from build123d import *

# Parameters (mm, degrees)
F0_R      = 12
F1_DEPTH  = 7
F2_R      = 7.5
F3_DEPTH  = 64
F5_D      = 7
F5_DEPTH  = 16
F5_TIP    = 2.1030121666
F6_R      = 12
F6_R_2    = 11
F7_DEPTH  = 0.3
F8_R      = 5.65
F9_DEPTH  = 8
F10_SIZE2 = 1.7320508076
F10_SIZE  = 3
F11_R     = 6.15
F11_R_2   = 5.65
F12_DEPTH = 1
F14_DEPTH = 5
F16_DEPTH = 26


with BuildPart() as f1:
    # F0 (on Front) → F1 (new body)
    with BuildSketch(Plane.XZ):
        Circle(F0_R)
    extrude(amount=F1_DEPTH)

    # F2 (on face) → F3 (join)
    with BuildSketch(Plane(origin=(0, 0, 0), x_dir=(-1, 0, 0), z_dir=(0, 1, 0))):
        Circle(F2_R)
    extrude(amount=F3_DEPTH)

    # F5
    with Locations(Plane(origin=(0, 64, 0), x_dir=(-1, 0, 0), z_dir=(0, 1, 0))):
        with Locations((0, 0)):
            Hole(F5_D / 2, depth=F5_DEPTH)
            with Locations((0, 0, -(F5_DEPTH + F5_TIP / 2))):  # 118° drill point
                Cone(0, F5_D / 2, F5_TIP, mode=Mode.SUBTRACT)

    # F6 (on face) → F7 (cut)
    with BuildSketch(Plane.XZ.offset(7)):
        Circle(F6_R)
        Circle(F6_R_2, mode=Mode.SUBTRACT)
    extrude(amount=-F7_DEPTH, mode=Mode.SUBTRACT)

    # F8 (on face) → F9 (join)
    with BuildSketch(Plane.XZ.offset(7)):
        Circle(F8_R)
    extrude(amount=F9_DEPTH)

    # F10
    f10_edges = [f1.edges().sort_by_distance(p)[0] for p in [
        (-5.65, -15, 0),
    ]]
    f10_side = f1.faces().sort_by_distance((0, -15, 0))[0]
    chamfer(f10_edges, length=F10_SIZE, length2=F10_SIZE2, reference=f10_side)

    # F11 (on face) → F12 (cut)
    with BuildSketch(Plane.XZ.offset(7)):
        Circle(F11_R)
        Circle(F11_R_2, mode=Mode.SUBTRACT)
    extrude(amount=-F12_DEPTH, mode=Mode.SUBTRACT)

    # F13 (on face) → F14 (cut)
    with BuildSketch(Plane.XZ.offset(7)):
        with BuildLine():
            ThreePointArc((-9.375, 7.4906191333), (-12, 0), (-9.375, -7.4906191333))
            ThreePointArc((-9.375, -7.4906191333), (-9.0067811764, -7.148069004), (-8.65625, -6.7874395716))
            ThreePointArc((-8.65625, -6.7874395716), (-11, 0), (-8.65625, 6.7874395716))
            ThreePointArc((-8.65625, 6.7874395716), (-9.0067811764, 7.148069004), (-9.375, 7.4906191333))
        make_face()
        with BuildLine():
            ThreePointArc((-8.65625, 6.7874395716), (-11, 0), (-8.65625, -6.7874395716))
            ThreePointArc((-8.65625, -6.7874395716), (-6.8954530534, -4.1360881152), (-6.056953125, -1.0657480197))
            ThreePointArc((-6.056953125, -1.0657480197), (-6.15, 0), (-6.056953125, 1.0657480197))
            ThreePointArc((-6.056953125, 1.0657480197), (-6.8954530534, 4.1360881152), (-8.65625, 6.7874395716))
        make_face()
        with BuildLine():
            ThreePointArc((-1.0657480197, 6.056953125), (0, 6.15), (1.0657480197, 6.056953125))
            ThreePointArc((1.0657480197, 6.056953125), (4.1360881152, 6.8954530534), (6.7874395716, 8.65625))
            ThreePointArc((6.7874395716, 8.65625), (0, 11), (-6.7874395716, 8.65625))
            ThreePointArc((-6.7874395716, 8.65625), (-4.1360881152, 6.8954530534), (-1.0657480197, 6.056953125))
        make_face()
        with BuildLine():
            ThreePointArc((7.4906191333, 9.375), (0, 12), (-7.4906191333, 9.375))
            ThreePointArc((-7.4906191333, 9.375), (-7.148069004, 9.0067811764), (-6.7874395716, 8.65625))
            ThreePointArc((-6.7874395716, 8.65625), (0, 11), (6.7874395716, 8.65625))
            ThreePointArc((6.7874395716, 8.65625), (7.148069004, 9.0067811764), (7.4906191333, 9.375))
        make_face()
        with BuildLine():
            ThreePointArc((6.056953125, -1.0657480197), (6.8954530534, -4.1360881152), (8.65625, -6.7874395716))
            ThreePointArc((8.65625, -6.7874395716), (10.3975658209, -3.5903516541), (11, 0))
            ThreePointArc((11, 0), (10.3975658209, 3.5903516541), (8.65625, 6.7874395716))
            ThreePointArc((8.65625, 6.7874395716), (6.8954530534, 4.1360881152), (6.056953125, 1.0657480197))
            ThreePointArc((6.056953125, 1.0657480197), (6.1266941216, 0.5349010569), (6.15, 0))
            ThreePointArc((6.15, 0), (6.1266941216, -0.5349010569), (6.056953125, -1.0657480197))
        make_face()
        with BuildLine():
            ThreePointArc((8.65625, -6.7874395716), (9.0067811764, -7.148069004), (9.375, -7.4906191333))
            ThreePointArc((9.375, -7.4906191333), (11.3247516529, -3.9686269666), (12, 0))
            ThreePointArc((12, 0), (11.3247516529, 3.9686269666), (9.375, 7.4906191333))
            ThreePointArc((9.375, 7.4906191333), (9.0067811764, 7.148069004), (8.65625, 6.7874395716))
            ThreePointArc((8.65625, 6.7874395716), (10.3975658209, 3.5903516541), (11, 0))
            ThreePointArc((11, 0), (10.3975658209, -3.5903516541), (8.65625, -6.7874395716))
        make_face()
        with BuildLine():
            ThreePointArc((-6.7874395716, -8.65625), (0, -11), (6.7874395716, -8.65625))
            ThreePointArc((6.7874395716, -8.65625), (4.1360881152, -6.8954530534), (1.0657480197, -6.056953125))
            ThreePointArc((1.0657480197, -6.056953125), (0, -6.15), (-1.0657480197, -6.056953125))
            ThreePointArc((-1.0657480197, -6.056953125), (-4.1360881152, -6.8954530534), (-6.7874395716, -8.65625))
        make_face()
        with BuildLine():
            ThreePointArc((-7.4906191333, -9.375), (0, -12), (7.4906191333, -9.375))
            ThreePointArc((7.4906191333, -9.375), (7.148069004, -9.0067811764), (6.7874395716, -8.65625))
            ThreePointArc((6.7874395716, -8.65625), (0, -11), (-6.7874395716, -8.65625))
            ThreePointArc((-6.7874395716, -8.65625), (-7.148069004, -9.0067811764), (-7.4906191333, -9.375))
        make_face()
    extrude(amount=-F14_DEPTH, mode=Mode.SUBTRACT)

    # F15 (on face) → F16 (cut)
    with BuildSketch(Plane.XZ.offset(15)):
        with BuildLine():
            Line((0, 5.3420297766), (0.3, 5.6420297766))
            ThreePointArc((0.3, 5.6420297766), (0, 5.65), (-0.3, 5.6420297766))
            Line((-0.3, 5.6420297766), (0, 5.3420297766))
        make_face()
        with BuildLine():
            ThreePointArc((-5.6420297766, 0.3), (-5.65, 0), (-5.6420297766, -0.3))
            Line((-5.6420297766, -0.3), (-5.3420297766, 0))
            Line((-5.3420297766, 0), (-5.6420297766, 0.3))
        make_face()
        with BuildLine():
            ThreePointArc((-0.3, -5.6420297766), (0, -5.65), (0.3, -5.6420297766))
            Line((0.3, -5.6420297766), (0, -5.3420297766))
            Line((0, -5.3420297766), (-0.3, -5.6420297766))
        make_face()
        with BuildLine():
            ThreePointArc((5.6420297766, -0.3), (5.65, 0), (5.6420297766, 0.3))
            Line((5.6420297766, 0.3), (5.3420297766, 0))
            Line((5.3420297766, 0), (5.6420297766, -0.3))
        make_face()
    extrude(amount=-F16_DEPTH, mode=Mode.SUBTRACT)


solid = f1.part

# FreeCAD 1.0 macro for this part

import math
import FreeCAD as App
import Part
import Sketcher


def edges_at(feature, points):
    """Names of the edges that pass closest to the given points."""
    edges = feature.Shape.Edges
    near = lambda p: min(range(len(edges)), key=lambda i: edges[i].distToShape(Part.Vertex(*p))[0])
    return sorted({f"Edge{near(p) + 1}" for p in points})

doc = App.newDocument("Part")
body = doc.addObject("PartDesign::Body", "Body")

sketch1 = body.newObject("Sketcher::SketchObject", "Sketch")
sketch1.AttachmentSupport = (doc.getObject("XZ_Plane"), [""])
sketch1.MapMode = "FlatFace"
sketch1.addGeometry(Part.Circle(App.Vector(0, 0, 0), App.Vector(0, 0, 1), 12), False)
sketch1.addConstraint(Sketcher.Constraint("Coincident", 0, 3, -1, 1))
sketch1.addConstraint(Sketcher.Constraint("Diameter", 0, 24.0))
pad1 = body.newObject("PartDesign::Pad", "Pad")
pad1.Profile = sketch1
pad1.Length = 7

sketch2 = body.newObject("Sketcher::SketchObject", "Sketch001")
sketch2.AttachmentSupport = (doc.getObject("XZ_Plane"), [""])
sketch2.MapMode = "FlatFace"
sketch2.addGeometry(Part.Circle(App.Vector(0, 0, 0), App.Vector(0, 0, 1), 8), False)
sketch2.addConstraint(Sketcher.Constraint("Coincident", 0, 3, -1, 1))
sketch2.addConstraint(Sketcher.Constraint("Diameter", 0, 15.0))
pad2 = body.newObject("PartDesign::Pad", "Pad001")
pad2.Profile = sketch2
pad2.Length = 64
pad2.Reversed = True

sketch3 = body.newObject("Sketcher::SketchObject", "Sketch002")
sketch3.AttachmentSupport = (doc.getObject("XZ_Plane"), [""])
sketch3.MapMode = "FlatFace"
sketch3.AttachmentOffset = App.Placement(App.Vector(0, 0, -64), App.Rotation())
sketch3.addGeometry(Part.Circle(App.Vector(0, 0, 0), App.Vector(0, 0, 1), 3.5), False)
sketch3.addConstraint(Sketcher.Constraint("Coincident", 0, 3, -1, 1))
sketch3.addConstraint(Sketcher.Constraint("Diameter", 0, 7.0))
doc.recompute()
hole = body.newObject("PartDesign::Hole", "Hole")
hole.Profile = sketch3
hole.ThreadType = "None"
hole.Diameter = 7
hole.DepthType = "Dimension"
hole.Depth = 16
hole.DrillPoint = "Angled"
hole.DrillPointAngle = 118
hole.Reversed = True

sketch4 = body.newObject("Sketcher::SketchObject", "Sketch003")
sketch4.AttachmentSupport = (doc.getObject("XZ_Plane"), [""])
sketch4.MapMode = "FlatFace"
sketch4.AttachmentOffset = App.Placement(App.Vector(0, 0, 7), App.Rotation())
sketch4.addGeometry(Part.Circle(App.Vector(0, 0, 0), App.Vector(0, 0, 1), 12), False)
sketch4.addGeometry(Part.Circle(App.Vector(0, 0, 0), App.Vector(0, 0, 1), 11), False)
sketch4.addConstraint(Sketcher.Constraint("Coincident", 0, 3, -1, 1))
sketch4.addConstraint(Sketcher.Constraint("Coincident", 1, 3, -1, 1))
sketch4.addConstraint(Sketcher.Constraint("Diameter", 0, 24.0))
sketch4.addConstraint(Sketcher.Constraint("Diameter", 1, 22.0))
pocket1 = body.newObject("PartDesign::Pocket", "Pocket")
pocket1.Profile = sketch4
pocket1.Length = 0.3

sketch5 = body.newObject("Sketcher::SketchObject", "Sketch004")
sketch5.AttachmentSupport = (doc.getObject("XZ_Plane"), [""])
sketch5.MapMode = "FlatFace"
sketch5.AttachmentOffset = App.Placement(App.Vector(0, 0, 7), App.Rotation())
sketch5.addGeometry(Part.Circle(App.Vector(0, 0, 0), App.Vector(0, 0, 1), 6), False)
sketch5.addConstraint(Sketcher.Constraint("Coincident", 0, 3, -1, 1))
sketch5.addConstraint(Sketcher.Constraint("Diameter", 0, 11.3))
pad3 = body.newObject("PartDesign::Pad", "Pad002")
pad3.Profile = sketch5
pad3.Length = 8
doc.recompute()

chamfer = body.newObject("PartDesign::Chamfer", "Chamfer")
chamfer.Base = (pad3, edges_at(pad3, [(-5.65, -15, 0)]))
chamfer.ChamferType = "Two distances"
chamfer.Size = 3
chamfer.Size2 = 1.732051
chamfer.FlipDirection = True

sketch6 = body.newObject("Sketcher::SketchObject", "Sketch005")
sketch6.AttachmentSupport = (doc.getObject("XZ_Plane"), [""])
sketch6.MapMode = "FlatFace"
sketch6.AttachmentOffset = App.Placement(App.Vector(0, 0, 7), App.Rotation())
sketch6.addGeometry(Part.Circle(App.Vector(0, 0, 0), App.Vector(0, 0, 1), 6), False)
sketch6.addGeometry(Part.Circle(App.Vector(0, 0, 0), App.Vector(0, 0, 1), 6), False)
sketch6.addConstraint(Sketcher.Constraint("Coincident", 0, 3, -1, 1))
sketch6.addConstraint(Sketcher.Constraint("Coincident", 1, 3, -1, 1))
sketch6.addConstraint(Sketcher.Constraint("Diameter", 0, 12.3))
sketch6.addConstraint(Sketcher.Constraint("Diameter", 1, 11.3))
pocket2 = body.newObject("PartDesign::Pocket", "Pocket001")
pocket2.Profile = sketch6
pocket2.Length = 1

sketch7 = body.newObject("Sketcher::SketchObject", "Sketch006")
sketch7.AttachmentSupport = (doc.getObject("XZ_Plane"), [""])
sketch7.MapMode = "FlatFace"
sketch7.AttachmentOffset = App.Placement(App.Vector(0, 0, 7), App.Rotation())
sketch7.addGeometry(Part.ArcOfCircle(Part.Circle(App.Vector(0, 0, 0), App.Vector(0, 0, 1), 12), math.radians(141), math.radians(219)), False)
sketch7.addGeometry(Part.ArcOfCircle(Part.Circle(App.Vector(-16, 0, 0), App.Vector(0, 0, 1), 10), math.radians(-48.51), math.radians(-42.75)), False)
sketch7.addGeometry(Part.ArcOfCircle(Part.Circle(App.Vector(-16, 0, 0), App.Vector(0, 0, 1), 10), math.radians(-43), math.radians(-6)), False)
sketch7.addGeometry(Part.ArcOfCircle(Part.Circle(App.Vector(0, 0, 0), App.Vector(0, 0, 1), 6.2), math.radians(170.02), math.radians(189.98)), False)
sketch7.addGeometry(Part.ArcOfCircle(Part.Circle(App.Vector(-16, 0, 0), App.Vector(0, 0, 1), 10), math.radians(6), math.radians(43)), False)
sketch7.addGeometry(Part.ArcOfCircle(Part.Circle(App.Vector(-16, 0, 0), App.Vector(0, 0, 1), 10), math.radians(42.75), math.radians(48.51)), False)
sketch7.addGeometry(Part.ArcOfCircle(Part.Circle(App.Vector(0, 0, 0), App.Vector(0, 0, 1), 6.2), math.radians(80.02), math.radians(99.98)), False)
sketch7.addGeometry(Part.ArcOfCircle(Part.Circle(App.Vector(0, 16, 0), App.Vector(0, 0, 1), 10), math.radians(-84), math.radians(-47)), False)
sketch7.addGeometry(Part.ArcOfCircle(Part.Circle(App.Vector(0, 16, 0), App.Vector(0, 0, 1), 10), math.radians(-47.25), math.radians(-41.49)), False)
sketch7.addGeometry(Part.ArcOfCircle(Part.Circle(App.Vector(0, 0, 0), App.Vector(0, 0, 1), 12), math.radians(51), math.radians(129)), False)
sketch7.addGeometry(Part.ArcOfCircle(Part.Circle(App.Vector(0, 16, 0), App.Vector(0, 0, 1), 10), math.radians(-138.51), math.radians(-132.75)), False)
sketch7.addGeometry(Part.ArcOfCircle(Part.Circle(App.Vector(0, 16, 0), App.Vector(0, 0, 1), 10), math.radians(-133), math.radians(-96)), False)
sketch7.addGeometry(Part.ArcOfCircle(Part.Circle(App.Vector(16, 0, 0), App.Vector(0, 0, 1), 10), math.radians(-174), math.radians(-137)), False)
sketch7.addGeometry(Part.ArcOfCircle(Part.Circle(App.Vector(16, 0, 0), App.Vector(0, 0, 1), 10), math.radians(-137.25), math.radians(-131.49)), False)
sketch7.addGeometry(Part.ArcOfCircle(Part.Circle(App.Vector(0, 0, 0), App.Vector(0, 0, 1), 12), math.radians(-39), math.radians(0)), False)
sketch7.addGeometry(Part.ArcOfCircle(Part.Circle(App.Vector(0, 0, 0), App.Vector(0, 0, 1), 12), math.radians(0), math.radians(39)), False)
sketch7.addGeometry(Part.ArcOfCircle(Part.Circle(App.Vector(16, 0, 0), App.Vector(0, 0, 1), 10), math.radians(131.49), math.radians(137.25)), False)
sketch7.addGeometry(Part.ArcOfCircle(Part.Circle(App.Vector(16, 0, 0), App.Vector(0, 0, 1), 10), math.radians(137), math.radians(174)), False)
sketch7.addGeometry(Part.ArcOfCircle(Part.Circle(App.Vector(0, 0, 0), App.Vector(0, 0, 1), 6.1), math.radians(0), math.radians(9.98)), False)
sketch7.addGeometry(Part.ArcOfCircle(Part.Circle(App.Vector(0, 0, 0), App.Vector(0, 0, 1), 6.1), math.radians(-9.98), math.radians(0)), False)
sketch7.addGeometry(Part.ArcOfCircle(Part.Circle(App.Vector(0, -16, 0), App.Vector(0, 0, 1), 10), math.radians(47), math.radians(84)), False)
sketch7.addGeometry(Part.ArcOfCircle(Part.Circle(App.Vector(0, 0, 0), App.Vector(0, 0, 1), 6.2), math.radians(-99.98), math.radians(-80.02)), False)
sketch7.addGeometry(Part.ArcOfCircle(Part.Circle(App.Vector(0, -16, 0), App.Vector(0, 0, 1), 10), math.radians(96), math.radians(133)), False)
sketch7.addGeometry(Part.ArcOfCircle(Part.Circle(App.Vector(0, -16, 0), App.Vector(0, 0, 1), 10), math.radians(132.75), math.radians(138.51)), False)
sketch7.addGeometry(Part.ArcOfCircle(Part.Circle(App.Vector(0, 0, 0), App.Vector(0, 0, 1), 12), math.radians(-129), math.radians(-51)), False)
sketch7.addGeometry(Part.ArcOfCircle(Part.Circle(App.Vector(0, -16, 0), App.Vector(0, 0, 1), 10), math.radians(41.49), math.radians(47.25)), False)
sketch7.addConstraint(Sketcher.Constraint("Coincident", 0, 2, 1, 1))
sketch7.addConstraint(Sketcher.Constraint("Tangent", 1, 2, 2, 1))
sketch7.addConstraint(Sketcher.Constraint("Coincident", 2, 2, 3, 2))
sketch7.addConstraint(Sketcher.Constraint("Coincident", 3, 1, 4, 1))
sketch7.addConstraint(Sketcher.Constraint("Tangent", 4, 2, 5, 1))
sketch7.addConstraint(Sketcher.Constraint("Coincident", 5, 2, 0, 1))
sketch7.addConstraint(Sketcher.Constraint("Coincident", 6, 1, 7, 1))
sketch7.addConstraint(Sketcher.Constraint("Tangent", 7, 2, 8, 1))
sketch7.addConstraint(Sketcher.Constraint("Coincident", 8, 2, 9, 1))
sketch7.addConstraint(Sketcher.Constraint("Coincident", 9, 2, 10, 1))
sketch7.addConstraint(Sketcher.Constraint("Tangent", 10, 2, 11, 1))
sketch7.addConstraint(Sketcher.Constraint("Coincident", 11, 2, 6, 2))
sketch7.addConstraint(Sketcher.Constraint("Tangent", 12, 2, 13, 1))
sketch7.addConstraint(Sketcher.Constraint("Coincident", 13, 2, 14, 1))
sketch7.addConstraint(Sketcher.Constraint("Tangent", 14, 2, 15, 1))
sketch7.addConstraint(Sketcher.Constraint("Coincident", 15, 2, 16, 1))
sketch7.addConstraint(Sketcher.Constraint("Tangent", 16, 2, 17, 1))
sketch7.addConstraint(Sketcher.Constraint("Coincident", 17, 2, 18, 2))
sketch7.addConstraint(Sketcher.Constraint("Tangent", 18, 1, 19, 2))
sketch7.addConstraint(Sketcher.Constraint("Coincident", 19, 1, 12, 1))
sketch7.addConstraint(Sketcher.Constraint("Coincident", 20, 2, 21, 2))
sketch7.addConstraint(Sketcher.Constraint("Coincident", 21, 1, 22, 1))
sketch7.addConstraint(Sketcher.Constraint("Tangent", 22, 2, 23, 1))
sketch7.addConstraint(Sketcher.Constraint("Coincident", 23, 2, 24, 1))
sketch7.addConstraint(Sketcher.Constraint("Coincident", 24, 2, 25, 1))
sketch7.addConstraint(Sketcher.Constraint("Tangent", 25, 2, 20, 1))
sketch7.addConstraint(Sketcher.Constraint("Coincident", 0, 3, -1, 1))
sketch7.addConstraint(Sketcher.Constraint("Coincident", 3, 3, -1, 1))
sketch7.addConstraint(Sketcher.Constraint("Coincident", 6, 3, -1, 1))
sketch7.addConstraint(Sketcher.Constraint("Coincident", 9, 3, -1, 1))
sketch7.addConstraint(Sketcher.Constraint("Coincident", 14, 3, -1, 1))
sketch7.addConstraint(Sketcher.Constraint("Coincident", 18, 3, -1, 1))
sketch7.addConstraint(Sketcher.Constraint("Coincident", 21, 3, -1, 1))
sketch7.addConstraint(Sketcher.Constraint("Coincident", 24, 3, -1, 1))
sketch7.addConstraint(Sketcher.Constraint("Coincident", 4, 3, 1, 3))
sketch7.addConstraint(Sketcher.Constraint("Coincident", 10, 3, 7, 3))
sketch7.addConstraint(Sketcher.Constraint("Coincident", 16, 3, 12, 3))
sketch7.addConstraint(Sketcher.Constraint("Coincident", 22, 3, 20, 3))
sketch7.addConstraint(Sketcher.Constraint("Equal", 1, 2))
sketch7.addConstraint(Sketcher.Constraint("Equal", 2, 4))
sketch7.addConstraint(Sketcher.Constraint("Equal", 4, 5))
sketch7.addConstraint(Sketcher.Constraint("Equal", 3, 6))
sketch7.addConstraint(Sketcher.Constraint("Equal", 5, 7))
sketch7.addConstraint(Sketcher.Constraint("Equal", 7, 8))
sketch7.addConstraint(Sketcher.Constraint("Equal", 0, 9))
sketch7.addConstraint(Sketcher.Constraint("Equal", 8, 10))
sketch7.addConstraint(Sketcher.Constraint("Equal", 10, 11))
sketch7.addConstraint(Sketcher.Constraint("Equal", 11, 12))
sketch7.addConstraint(Sketcher.Constraint("Equal", 12, 13))
sketch7.addConstraint(Sketcher.Constraint("Equal", 9, 14))
sketch7.addConstraint(Sketcher.Constraint("Equal", 14, 15))
sketch7.addConstraint(Sketcher.Constraint("Equal", 13, 16))
sketch7.addConstraint(Sketcher.Constraint("Equal", 16, 17))
sketch7.addConstraint(Sketcher.Constraint("Equal", 6, 18))
sketch7.addConstraint(Sketcher.Constraint("Equal", 18, 19))
sketch7.addConstraint(Sketcher.Constraint("Equal", 17, 20))
sketch7.addConstraint(Sketcher.Constraint("Equal", 19, 21))
sketch7.addConstraint(Sketcher.Constraint("Equal", 20, 22))
sketch7.addConstraint(Sketcher.Constraint("Equal", 22, 23))
sketch7.addConstraint(Sketcher.Constraint("Equal", 15, 24))
sketch7.addConstraint(Sketcher.Constraint("Equal", 23, 25))
sketch7.addConstraint(Sketcher.Constraint("Symmetric", 1, 3, 12, 3, -1, 1))
sketch7.addConstraint(Sketcher.Constraint("Symmetric", 7, 3, 20, 3, -1, 1))
sketch7.addConstraint(Sketcher.Constraint("Symmetric", 7, 2, 10, 2, -2))
sketch7.addConstraint(Sketcher.Constraint("Symmetric", 1, 2, 12, 2, -2))
sketch7.addConstraint(Sketcher.Constraint("PointOnObject", 14, 2, -1))
sketch7.addConstraint(Sketcher.Constraint("PointOnObject", 18, 1, -1))
sketch7.addConstraint(Sketcher.Constraint("Horizontal", 4, 2, 16, 2))
sketch7.addConstraint(Sketcher.Constraint("Horizontal", 22, 2, 25, 2))
sketch7.addConstraint(Sketcher.Constraint("Vertical", 1, 2, 4, 2))
sketch7.addConstraint(Sketcher.Constraint("Vertical", 10, 2, 22, 2))
sketch7.addConstraint(Sketcher.Constraint("Radius", 0, 12.0))
sketch7.addConstraint(Sketcher.Constraint("Radius", 1, 10.0))
sketch7.addConstraint(Sketcher.Constraint("Radius", 3, 6.15))
sketch7.addConstraint(Sketcher.Constraint("DistanceX", 1, 3, -1, 1, 16.0))
sketch7.addConstraint(Sketcher.Constraint("DistanceY", -1, 1, 7, 3, 16.0))
sketch7.addConstraint(Sketcher.Constraint("DistanceY", 3, 1, 10, 2, 7.590502))
sketch7.addConstraint(Sketcher.Constraint("DistanceX", 6, 1, 16, 2, 7.590502))
pocket3 = body.newObject("PartDesign::Pocket", "Pocket002")
pocket3.Profile = sketch7
pocket3.Length = 5

sketch8 = body.newObject("Sketcher::SketchObject", "Sketch007")
sketch8.AttachmentSupport = (doc.getObject("XZ_Plane"), [""])
sketch8.MapMode = "FlatFace"
sketch8.AttachmentOffset = App.Placement(App.Vector(0, 0, 15), App.Rotation())
sketch8.addGeometry(Part.LineSegment(App.Vector(0, 5.34, 0), App.Vector(0.3, 5.64, 0)), False)
sketch8.addGeometry(Part.ArcOfCircle(Part.Circle(App.Vector(0, 0, 0), App.Vector(0, 0, 1), 5.65), math.radians(86.96), math.radians(93.04)), False)
sketch8.addGeometry(Part.LineSegment(App.Vector(-0.3, 5.64, 0), App.Vector(0, 5.34, 0)), False)
sketch8.addGeometry(Part.ArcOfCircle(Part.Circle(App.Vector(0, 0, 0), App.Vector(0, 0, 1), 5.65), math.radians(176.96), math.radians(183.04)), False)
sketch8.addGeometry(Part.LineSegment(App.Vector(-5.64, -0.3, 0), App.Vector(-5.34, 0, 0)), False)
sketch8.addGeometry(Part.LineSegment(App.Vector(-5.34, 0, 0), App.Vector(-5.64, 0.3, 0)), False)
sketch8.addGeometry(Part.ArcOfCircle(Part.Circle(App.Vector(0, 0, 0), App.Vector(0, 0, 1), 5.65), math.radians(-93.04), math.radians(-86.96)), False)
sketch8.addGeometry(Part.LineSegment(App.Vector(0.3, -5.64, 0), App.Vector(0, -5.34, 0)), False)
sketch8.addGeometry(Part.LineSegment(App.Vector(0, -5.34, 0), App.Vector(-0.3, -5.64, 0)), False)
sketch8.addGeometry(Part.ArcOfCircle(Part.Circle(App.Vector(0, 0, 0), App.Vector(0, 0, 1), 5.65), math.radians(-3.04), math.radians(3.04)), False)
sketch8.addGeometry(Part.LineSegment(App.Vector(5.64, 0.3, 0), App.Vector(5.34, 0, 0)), False)
sketch8.addGeometry(Part.LineSegment(App.Vector(5.34, 0, 0), App.Vector(5.64, -0.3, 0)), False)
sketch8.addConstraint(Sketcher.Constraint("Coincident", 0, 2, 1, 1))
sketch8.addConstraint(Sketcher.Constraint("Coincident", 1, 2, 2, 1))
sketch8.addConstraint(Sketcher.Constraint("Coincident", 2, 2, 0, 1))
sketch8.addConstraint(Sketcher.Constraint("Coincident", 3, 2, 4, 1))
sketch8.addConstraint(Sketcher.Constraint("Coincident", 4, 2, 5, 1))
sketch8.addConstraint(Sketcher.Constraint("Coincident", 5, 2, 3, 1))
sketch8.addConstraint(Sketcher.Constraint("Coincident", 6, 2, 7, 1))
sketch8.addConstraint(Sketcher.Constraint("Coincident", 7, 2, 8, 1))
sketch8.addConstraint(Sketcher.Constraint("Coincident", 8, 2, 6, 1))
sketch8.addConstraint(Sketcher.Constraint("Coincident", 9, 2, 10, 1))
sketch8.addConstraint(Sketcher.Constraint("Coincident", 10, 2, 11, 1))
sketch8.addConstraint(Sketcher.Constraint("Coincident", 11, 2, 9, 1))
sketch8.addConstraint(Sketcher.Constraint("Coincident", 1, 3, -1, 1))
sketch8.addConstraint(Sketcher.Constraint("Coincident", 3, 3, -1, 1))
sketch8.addConstraint(Sketcher.Constraint("Coincident", 6, 3, -1, 1))
sketch8.addConstraint(Sketcher.Constraint("Coincident", 9, 3, -1, 1))
sketch8.addConstraint(Sketcher.Constraint("Equal", 1, 3))
sketch8.addConstraint(Sketcher.Constraint("Equal", 3, 6))
sketch8.addConstraint(Sketcher.Constraint("Equal", 6, 9))
sketch8.addConstraint(Sketcher.Constraint("Symmetric", 2, 2, 7, 2, -1, 1))
sketch8.addConstraint(Sketcher.Constraint("Symmetric", 4, 2, 10, 2, -1, 1))
sketch8.addConstraint(Sketcher.Constraint("PointOnObject", 2, 2, -2))
sketch8.addConstraint(Sketcher.Constraint("PointOnObject", 4, 2, -1))
sketch8.addConstraint(Sketcher.Constraint("Perpendicular", 0, 2))
sketch8.addConstraint(Sketcher.Constraint("Perpendicular", 2, 4))
sketch8.addConstraint(Sketcher.Constraint("Perpendicular", 4, 5))
sketch8.addConstraint(Sketcher.Constraint("Parallel", 5, 7))
sketch8.addConstraint(Sketcher.Constraint("Perpendicular", 7, 8))
sketch8.addConstraint(Sketcher.Constraint("Parallel", 8, 10))
sketch8.addConstraint(Sketcher.Constraint("Perpendicular", 10, 11))
sketch8.addConstraint(Sketcher.Constraint("Horizontal", 0, 2, 1, 2))
sketch8.addConstraint(Sketcher.Constraint("Equal", 2, 4))
sketch8.addConstraint(Sketcher.Constraint("Radius", 1, 5.65))
sketch8.addConstraint(Sketcher.Constraint("DistanceX", -1, 1, 0, 2, 0.3))
pocket4 = body.newObject("PartDesign::Pocket", "Pocket003")
pocket4.Profile = sketch8
pocket4.Length = 26

doc.recompute()
